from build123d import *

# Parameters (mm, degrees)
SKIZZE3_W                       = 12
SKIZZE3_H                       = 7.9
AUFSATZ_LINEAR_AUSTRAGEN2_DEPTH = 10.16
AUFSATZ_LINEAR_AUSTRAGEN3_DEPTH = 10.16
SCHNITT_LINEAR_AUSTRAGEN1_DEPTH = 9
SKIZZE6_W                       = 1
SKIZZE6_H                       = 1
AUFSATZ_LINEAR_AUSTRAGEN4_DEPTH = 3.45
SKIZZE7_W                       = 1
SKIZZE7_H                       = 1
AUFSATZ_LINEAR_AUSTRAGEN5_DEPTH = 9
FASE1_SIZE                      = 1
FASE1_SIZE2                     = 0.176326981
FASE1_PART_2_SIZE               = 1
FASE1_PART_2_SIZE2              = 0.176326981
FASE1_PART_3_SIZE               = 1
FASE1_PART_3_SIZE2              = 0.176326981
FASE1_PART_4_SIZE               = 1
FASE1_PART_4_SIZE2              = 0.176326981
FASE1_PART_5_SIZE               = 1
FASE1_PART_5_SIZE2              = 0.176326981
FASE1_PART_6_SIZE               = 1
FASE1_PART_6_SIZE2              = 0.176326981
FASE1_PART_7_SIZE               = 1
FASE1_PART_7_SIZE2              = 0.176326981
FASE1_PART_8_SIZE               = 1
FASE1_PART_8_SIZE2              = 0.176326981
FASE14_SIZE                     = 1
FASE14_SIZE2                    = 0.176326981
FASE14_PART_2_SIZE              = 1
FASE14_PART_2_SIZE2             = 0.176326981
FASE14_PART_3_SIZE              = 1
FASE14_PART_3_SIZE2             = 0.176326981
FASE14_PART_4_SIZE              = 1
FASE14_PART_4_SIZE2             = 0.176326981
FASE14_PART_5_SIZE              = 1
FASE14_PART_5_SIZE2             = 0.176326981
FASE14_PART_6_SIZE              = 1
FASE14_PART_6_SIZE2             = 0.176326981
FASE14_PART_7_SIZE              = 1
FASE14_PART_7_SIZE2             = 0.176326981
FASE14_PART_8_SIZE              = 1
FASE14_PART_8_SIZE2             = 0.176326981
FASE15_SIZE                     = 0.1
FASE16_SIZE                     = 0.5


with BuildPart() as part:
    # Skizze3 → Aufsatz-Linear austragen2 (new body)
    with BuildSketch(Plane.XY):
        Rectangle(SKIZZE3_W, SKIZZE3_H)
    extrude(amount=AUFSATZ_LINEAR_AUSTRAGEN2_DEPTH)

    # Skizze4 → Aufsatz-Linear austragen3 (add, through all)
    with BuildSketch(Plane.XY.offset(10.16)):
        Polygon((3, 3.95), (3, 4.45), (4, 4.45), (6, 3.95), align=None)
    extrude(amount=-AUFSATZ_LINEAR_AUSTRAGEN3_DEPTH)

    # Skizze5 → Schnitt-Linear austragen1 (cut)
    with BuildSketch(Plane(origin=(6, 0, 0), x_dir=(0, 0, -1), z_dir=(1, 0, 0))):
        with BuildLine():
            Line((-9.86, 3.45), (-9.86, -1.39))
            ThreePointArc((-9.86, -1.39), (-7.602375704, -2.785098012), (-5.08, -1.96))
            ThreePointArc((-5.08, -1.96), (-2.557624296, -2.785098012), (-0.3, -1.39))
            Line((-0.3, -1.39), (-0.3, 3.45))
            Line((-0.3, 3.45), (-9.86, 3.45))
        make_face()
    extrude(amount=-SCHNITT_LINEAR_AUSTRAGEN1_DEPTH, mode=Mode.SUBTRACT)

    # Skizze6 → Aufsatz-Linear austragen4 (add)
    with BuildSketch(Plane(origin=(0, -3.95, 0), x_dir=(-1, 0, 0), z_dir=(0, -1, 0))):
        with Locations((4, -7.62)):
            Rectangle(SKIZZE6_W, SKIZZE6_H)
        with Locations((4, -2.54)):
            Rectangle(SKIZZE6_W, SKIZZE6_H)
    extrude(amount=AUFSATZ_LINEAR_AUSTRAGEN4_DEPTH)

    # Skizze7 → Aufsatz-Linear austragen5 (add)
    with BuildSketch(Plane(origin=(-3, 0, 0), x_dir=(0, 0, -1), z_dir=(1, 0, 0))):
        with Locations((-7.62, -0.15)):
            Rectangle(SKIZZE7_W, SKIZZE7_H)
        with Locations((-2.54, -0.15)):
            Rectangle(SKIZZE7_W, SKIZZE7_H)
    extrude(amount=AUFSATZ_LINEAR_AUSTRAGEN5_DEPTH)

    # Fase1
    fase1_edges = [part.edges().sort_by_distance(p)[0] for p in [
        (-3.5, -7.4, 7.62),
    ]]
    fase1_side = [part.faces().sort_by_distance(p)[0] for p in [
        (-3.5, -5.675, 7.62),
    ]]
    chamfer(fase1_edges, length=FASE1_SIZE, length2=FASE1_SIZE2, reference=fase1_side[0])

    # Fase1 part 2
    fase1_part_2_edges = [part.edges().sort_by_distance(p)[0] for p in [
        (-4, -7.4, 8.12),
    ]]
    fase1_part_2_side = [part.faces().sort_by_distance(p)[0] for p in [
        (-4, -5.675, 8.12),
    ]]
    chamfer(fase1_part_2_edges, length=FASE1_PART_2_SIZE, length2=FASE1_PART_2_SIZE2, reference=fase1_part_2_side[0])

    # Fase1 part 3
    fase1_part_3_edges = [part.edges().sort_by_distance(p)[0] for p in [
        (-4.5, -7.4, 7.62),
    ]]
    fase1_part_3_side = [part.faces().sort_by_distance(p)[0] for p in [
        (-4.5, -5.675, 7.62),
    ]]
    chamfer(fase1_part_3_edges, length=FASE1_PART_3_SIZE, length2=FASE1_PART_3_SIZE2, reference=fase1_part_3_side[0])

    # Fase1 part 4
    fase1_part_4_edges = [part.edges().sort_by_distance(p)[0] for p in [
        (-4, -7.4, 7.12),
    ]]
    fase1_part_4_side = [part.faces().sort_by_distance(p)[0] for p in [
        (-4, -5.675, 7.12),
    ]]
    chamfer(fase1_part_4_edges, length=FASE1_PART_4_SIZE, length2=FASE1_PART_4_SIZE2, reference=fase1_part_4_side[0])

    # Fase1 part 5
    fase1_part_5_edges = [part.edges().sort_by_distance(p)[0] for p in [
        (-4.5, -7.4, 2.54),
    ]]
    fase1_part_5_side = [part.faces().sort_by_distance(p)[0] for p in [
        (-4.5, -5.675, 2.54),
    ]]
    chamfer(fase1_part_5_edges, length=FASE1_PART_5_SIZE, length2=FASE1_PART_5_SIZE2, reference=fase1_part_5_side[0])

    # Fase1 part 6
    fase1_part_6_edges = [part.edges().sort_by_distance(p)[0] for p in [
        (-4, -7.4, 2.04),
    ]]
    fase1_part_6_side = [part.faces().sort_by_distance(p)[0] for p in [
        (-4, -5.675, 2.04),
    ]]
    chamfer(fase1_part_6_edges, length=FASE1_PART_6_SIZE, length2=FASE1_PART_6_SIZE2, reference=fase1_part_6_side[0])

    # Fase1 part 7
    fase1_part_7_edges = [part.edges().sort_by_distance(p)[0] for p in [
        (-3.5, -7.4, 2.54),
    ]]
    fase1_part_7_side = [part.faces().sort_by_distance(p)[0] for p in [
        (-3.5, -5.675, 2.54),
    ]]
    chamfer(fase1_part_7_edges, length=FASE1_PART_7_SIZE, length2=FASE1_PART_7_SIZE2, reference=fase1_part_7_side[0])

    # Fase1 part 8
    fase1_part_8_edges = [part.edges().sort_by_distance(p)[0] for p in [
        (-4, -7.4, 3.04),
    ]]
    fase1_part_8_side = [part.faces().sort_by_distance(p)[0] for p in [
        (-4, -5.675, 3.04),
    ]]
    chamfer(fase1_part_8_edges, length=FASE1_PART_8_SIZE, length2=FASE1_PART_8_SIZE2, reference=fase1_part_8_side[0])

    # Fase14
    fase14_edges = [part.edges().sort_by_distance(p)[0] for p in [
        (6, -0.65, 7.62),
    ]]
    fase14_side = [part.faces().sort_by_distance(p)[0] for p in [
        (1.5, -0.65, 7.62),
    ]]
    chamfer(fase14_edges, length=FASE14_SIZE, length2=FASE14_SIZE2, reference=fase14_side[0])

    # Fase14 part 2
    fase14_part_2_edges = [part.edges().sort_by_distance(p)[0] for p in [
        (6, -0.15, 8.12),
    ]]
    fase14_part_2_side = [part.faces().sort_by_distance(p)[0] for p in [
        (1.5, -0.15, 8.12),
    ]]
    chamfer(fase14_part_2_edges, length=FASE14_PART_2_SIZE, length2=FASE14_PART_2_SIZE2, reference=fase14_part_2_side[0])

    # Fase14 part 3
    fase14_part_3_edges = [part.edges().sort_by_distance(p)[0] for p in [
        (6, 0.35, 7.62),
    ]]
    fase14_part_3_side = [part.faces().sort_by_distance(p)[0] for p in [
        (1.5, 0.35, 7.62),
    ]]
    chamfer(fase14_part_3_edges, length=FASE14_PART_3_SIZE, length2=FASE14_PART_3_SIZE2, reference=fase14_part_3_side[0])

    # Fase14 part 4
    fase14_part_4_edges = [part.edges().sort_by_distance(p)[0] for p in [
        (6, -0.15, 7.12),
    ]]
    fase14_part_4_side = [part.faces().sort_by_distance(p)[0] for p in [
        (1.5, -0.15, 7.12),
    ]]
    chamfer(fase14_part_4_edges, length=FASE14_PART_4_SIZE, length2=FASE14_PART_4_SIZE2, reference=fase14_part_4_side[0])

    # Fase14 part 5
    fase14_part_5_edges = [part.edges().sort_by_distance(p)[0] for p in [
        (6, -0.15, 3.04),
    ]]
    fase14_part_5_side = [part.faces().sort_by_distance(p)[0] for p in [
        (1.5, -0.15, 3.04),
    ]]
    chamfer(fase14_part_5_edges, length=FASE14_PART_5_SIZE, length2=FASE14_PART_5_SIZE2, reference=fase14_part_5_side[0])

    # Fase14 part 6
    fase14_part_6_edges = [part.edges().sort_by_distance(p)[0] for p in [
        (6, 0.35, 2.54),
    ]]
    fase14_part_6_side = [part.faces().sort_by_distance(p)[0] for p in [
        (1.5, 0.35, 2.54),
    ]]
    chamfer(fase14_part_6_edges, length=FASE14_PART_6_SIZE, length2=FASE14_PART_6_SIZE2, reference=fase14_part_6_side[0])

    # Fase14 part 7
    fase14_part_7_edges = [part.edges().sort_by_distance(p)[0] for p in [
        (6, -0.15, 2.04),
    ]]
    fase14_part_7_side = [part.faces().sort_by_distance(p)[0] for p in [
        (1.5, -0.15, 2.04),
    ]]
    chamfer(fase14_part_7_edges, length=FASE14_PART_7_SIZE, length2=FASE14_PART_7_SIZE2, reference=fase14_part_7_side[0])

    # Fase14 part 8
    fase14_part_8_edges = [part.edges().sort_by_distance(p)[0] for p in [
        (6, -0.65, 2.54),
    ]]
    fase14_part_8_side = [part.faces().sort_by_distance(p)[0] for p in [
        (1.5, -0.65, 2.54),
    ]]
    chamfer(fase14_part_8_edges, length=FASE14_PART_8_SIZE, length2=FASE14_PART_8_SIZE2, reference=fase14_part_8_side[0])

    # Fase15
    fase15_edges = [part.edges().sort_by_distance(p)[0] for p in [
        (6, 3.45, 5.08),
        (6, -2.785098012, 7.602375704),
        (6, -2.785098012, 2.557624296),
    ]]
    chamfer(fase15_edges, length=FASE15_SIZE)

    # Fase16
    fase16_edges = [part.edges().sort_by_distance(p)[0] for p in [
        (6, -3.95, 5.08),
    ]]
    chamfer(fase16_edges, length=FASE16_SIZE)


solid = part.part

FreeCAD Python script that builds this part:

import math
import FreeCAD as App
import Part
import Sketcher
from FreeCAD import Vector


def edges_at(feature, points):
    """Names of the edges that pass closest to the given points."""
    edges = feature.Shape.Edges
    near = lambda p: min(range(len(edges)), key=lambda i: edges[i].distToShape(Part.Vertex(*p))[0])
    return sorted({f"Edge{near(p) + 1}" for p in points})

doc = App.newDocument("Part")
params = doc.addObject("Spreadsheet::Sheet", "Params")
for row, (alias, value) in enumerate([
    ("sketch1_width", "12 mm"),
    ("sketch1_height", "7.9 mm"),
    ("pad1_length", "10.16 mm"),
    ("sketch2_width", "3 mm"),
    ("sketch2_width2", "1 mm"),
    ("sketch2_height", "0.5 mm"),
    ("pad2_length", "10.16 mm"),
    ("sketch3_radius", "3.15 mm"),
    ("sketch3_width", "4.84 mm"),
    ("sketch3_height", "9.56 mm"),
    ("pocket1_length", "9 mm"),
    ("sketch4_width", "1 mm"),
    ("pad3_length", "3.45 mm"),
    ("sketch5_width", "1 mm"),
    ("pad4_length", "9 mm"),
    ("chamfer_size", "1 mm"),
    ("chamfer_size2", "0.176327 mm"),
    ("chamfer2_size", "1 mm"),
    ("chamfer2_size2", "0.176327 mm"),
    ("chamfer3_size", "1 mm"),
    ("chamfer3_size2", "0.176327 mm"),
    ("chamfer4_size", "1 mm"),
    ("chamfer4_size2", "0.176327 mm"),
    ("chamfer5_size", "1 mm"),
    ("chamfer5_size2", "0.176327 mm"),
    ("chamfer6_size", "1 mm"),
    ("chamfer6_size2", "0.176327 mm"),
    ("chamfer7_size", "1 mm"),
    ("chamfer7_size2", "0.176327 mm"),
    ("chamfer8_size", "1 mm"),
    ("chamfer8_size2", "0.176327 mm"),
    ("chamfer9_size", "1 mm"),
    ("chamfer9_size2", "0.176327 mm"),
    ("chamfer10_size", "1 mm"),
    ("chamfer10_size2", "0.176327 mm"),
    ("chamfer11_size", "1 mm"),
    ("chamfer11_size2", "0.176327 mm"),
    ("chamfer12_size", "1 mm"),
    ("chamfer12_size2", "0.176327 mm"),
    ("chamfer13_size", "1 mm"),
    ("chamfer13_size2", "0.176327 mm"),
    ("chamfer14_size", "1 mm"),
    ("chamfer14_size2", "0.176327 mm"),
    ("chamfer15_size", "1 mm"),
    ("chamfer15_size2", "0.176327 mm"),
    ("chamfer16_size", "1 mm"),
    ("chamfer16_size2", "0.176327 mm"),
    ("chamfer17_size", "0.1 mm"),
    ("chamfer18_size", "0.5 mm"),
], start=1):
    params.set(f"A{row}", alias)
    params.set(f"B{row}", "=" + value)
    params.setAlias(f"B{row}", alias)

body = doc.addObject("PartDesign::Body", "Body")

sketch1 = body.newObject("Sketcher::SketchObject", "Sketch")
sketch1.AttachmentSupport = (doc.getObject("XY_Plane"), [""])
sketch1.MapMode = "FlatFace"
sketch1.addGeometry([
    Part.LineSegment(Vector(-6, 4, 0), Vector(-6, -4, 0)),
    Part.LineSegment(Vector(-6, -4, 0), Vector(6, -4, 0)),
    Part.LineSegment(Vector(6, -4, 0), Vector(6, 4, 0)),
    Part.LineSegment(Vector(6, 4, 0), Vector(-6, 4, 0)),
], False)
sketch1.addConstraint([
    Sketcher.Constraint("Coincident", 0, 2, 1, 1),
    Sketcher.Constraint("Coincident", 1, 2, 2, 1),
    Sketcher.Constraint("Coincident", 2, 2, 3, 1),
    Sketcher.Constraint("Coincident", 3, 2, 0, 1),
    Sketcher.Constraint("Vertical", 0),
    Sketcher.Constraint("Horizontal", 1),
    Sketcher.Constraint("Vertical", 2),
    Sketcher.Constraint("Horizontal", 3),
    Sketcher.Constraint("Symmetric", 0, 2, 2, 2, -1, 1),
    Sketcher.Constraint("DistanceX", 1, 1, 1, 2, 12.0),
    Sketcher.Constraint("DistanceY", 0, 2, 0, 1, 7.9),
])
sketch1.setExpression("Constraints[9]", "Params.sketch1_width")
sketch1.setExpression("Constraints[10]", "Params.sketch1_height")
pad1 = body.newObject("PartDesign::Pad", "Pad")
pad1.Profile = sketch1
pad1.setExpression("Length", "Params.pad1_length")

sketch2 = body.newObject("Sketcher::SketchObject", "Sketch001")
sketch2.AttachmentSupport = (doc.getObject("XY_Plane"), [""])
sketch2.MapMode = "FlatFace"
sketch2.AttachmentOffset = App.Placement(Vector(0, 0, 10.16), App.Rotation())
sketch2.addGeometry([
    Part.LineSegment(Vector(3, 4.5, 0), Vector(3, 4, 0)),
    Part.LineSegment(Vector(3, 4, 0), Vector(6, 4, 0)),
    Part.LineSegment(Vector(6, 4, 0), Vector(4, 4.5, 0)),
    Part.LineSegment(Vector(4, 4.5, 0), Vector(3, 4.5, 0)),
], False)
sketch2.addConstraint([
    Sketcher.Constraint("Coincident", 0, 2, 1, 1),
    Sketcher.Constraint("Coincident", 1, 2, 2, 1),
    Sketcher.Constraint("Coincident", 2, 2, 3, 1),
    Sketcher.Constraint("Coincident", 3, 2, 0, 1),
    Sketcher.Constraint("Vertical", 0),
    Sketcher.Constraint("Horizontal", 1),
    Sketcher.Constraint("Horizontal", 3),
    Sketcher.Constraint("DistanceX", 1, 1, 1, 2, 3.0),
    Sketcher.Constraint("DistanceX", 3, 2, 3, 1, 1.0),
    Sketcher.Constraint("DistanceY", 0, 2, 0, 1, 0.5),
    Sketcher.Constraint("DistanceX", -1, 1, 0, 2, 3.0),
    Sketcher.Constraint("DistanceY", -1, 1, 0, 2, 3.95),
])
sketch2.setExpression("Constraints[7]", "Params.sketch2_width")
sketch2.setExpression("Constraints[8]", "Params.sketch2_width2")
sketch2.setExpression("Constraints[9]", "Params.sketch2_height")
pad2 = body.newObject("PartDesign::Pad", "Pad001")
pad2.Profile = sketch2
pad2.setExpression("Length", "Params.pad2_length")
pad2.Reversed = True

sketch3 = body.newObject("Sketcher::SketchObject", "Sketch002")
sketch3.AttachmentSupport = (doc.getObject("YZ_Plane"), [""])
sketch3.MapMode = "FlatFace"
sketch3.AttachmentOffset = App.Placement(Vector(0, 0, 6), App.Rotation())
sketch3.addGeometry([
    Part.LineSegment(Vector(3.5, 9.9, 0), Vector(-1.4, 9.9, 0)),
    Part.ArcOfCircle(Part.Circle(Vector(0.3, 7.2, 0), Vector(0, 0, 1), 3.1), math.radians(123), math.radians(223)),
    Part.ArcOfCircle(Part.Circle(Vector(0.3, 2.9, 0), Vector(0, 0, 1), 3.1), math.radians(137), math.radians(237)),
    Part.LineSegment(Vector(-1.4, 0.3, 0), Vector(3.5, 0.3, 0)),
    Part.LineSegment(Vector(3.5, 0.3, 0), Vector(3.5, 9.9, 0)),
], False)
sketch3.addConstraint([
    Sketcher.Constraint("Coincident", 0, 2, 1, 1),
    Sketcher.Constraint("Coincident", 1, 2, 2, 1),
    Sketcher.Constraint("Coincident", 2, 2, 3, 1),
    Sketcher.Constraint("Coincident", 3, 2, 4, 1),
    Sketcher.Constraint("Coincident", 4, 2, 0, 1),
    Sketcher.Constraint("Horizontal", 0),
    Sketcher.Constraint("Horizontal", 3),
    Sketcher.Constraint("Vertical", 4),
    Sketcher.Constraint("Equal", 1, 2),
    Sketcher.Constraint("Vertical", 1, 3, 2, 3),
    Sketcher.Constraint("Vertical", 0, 2, 2, 2),
    Sketcher.Constraint("Radius", 1, 3.15),
    Sketcher.Constraint("DistanceX", 0, 2, 0, 1, 4.84),
    Sketcher.Constraint("DistanceY", 4, 1, 4, 2, 9.56),
    Sketcher.Constraint("DistanceY", -1, 1, 2, 2, 0.3),
    Sketcher.Constraint("DistanceX", 0, 2, -1, 1, 1.39),
    Sketcher.Constraint("DistanceX", 1, 2, -1, 1, 1.96),
])
sketch3.setExpression("Constraints[11]", "Params.sketch3_radius")
sketch3.setExpression("Constraints[12]", "Params.sketch3_width")
sketch3.setExpression("Constraints[13]", "Params.sketch3_height")
pocket1 = body.newObject("PartDesign::Pocket", "Pocket")
pocket1.Profile = sketch3
pocket1.setExpression("Length", "Params.pocket1_length")

sketch4 = body.newObject("Sketcher::SketchObject", "Sketch003")
sketch4.AttachmentSupport = (doc.getObject("XZ_Plane"), [""])
sketch4.MapMode = "FlatFace"
sketch4.AttachmentOffset = App.Placement(Vector(0, 0, 3.95), App.Rotation())
sketch4.addGeometry([
    Part.LineSegment(Vector(-3.5, 7.1, 0), Vector(-3.5, 8.1, 0)),
    Part.LineSegment(Vector(-3.5, 8.1, 0), Vector(-4.5, 8.1, 0)),
    Part.LineSegment(Vector(-4.5, 8.1, 0), Vector(-4.5, 7.1, 0)),
    Part.LineSegment(Vector(-4.5, 7.1, 0), Vector(-3.5, 7.1, 0)),
    Part.LineSegment(Vector(-3.5, 2, 0), Vector(-3.5, 3, 0)),
    Part.LineSegment(Vector(-3.5, 3, 0), Vector(-4.5, 3, 0)),
    Part.LineSegment(Vector(-4.5, 3, 0), Vector(-4.5, 2, 0)),
    Part.LineSegment(Vector(-4.5, 2, 0), Vector(-3.5, 2, 0)),
], False)
sketch4.addConstraint([
    Sketcher.Constraint("Coincident", 0, 2, 1, 1),
    Sketcher.Constraint("Coincident", 1, 2, 2, 1),
    Sketcher.Constraint("Coincident", 2, 2, 3, 1),
    Sketcher.Constraint("Coincident", 3, 2, 0, 1),
    Sketcher.Constraint("Coincident", 4, 2, 5, 1),
    Sketcher.Constraint("Coincident", 5, 2, 6, 1),
    Sketcher.Constraint("Coincident", 6, 2, 7, 1),
    Sketcher.Constraint("Coincident", 7, 2, 4, 1),
    Sketcher.Constraint("Vertical", 0),
    Sketcher.Constraint("Horizontal", 1),
    Sketcher.Constraint("Vertical", 2),
    Sketcher.Constraint("Horizontal", 3),
    Sketcher.Constraint("Vertical", 4),
    Sketcher.Constraint("Horizontal", 5),
    Sketcher.Constraint("Vertical", 6),
    Sketcher.Constraint("Horizontal", 7),
    Sketcher.Constraint("Vertical", 3, 2, 4, 2),
    Sketcher.Constraint("Vertical", 2, 2, 5, 2),
    Sketcher.Constraint("Equal", 7, 0),
    Sketcher.Constraint("Equal", 2, 4),
    Sketcher.Constraint("DistanceX", 1, 2, 1, 1, 1.0),
    Sketcher.Constraint("DistanceX", 0, 2, -1, 1, 3.5),
    Sketcher.Constraint("DistanceY", -1, 1, 0, 2, 8.12),
    Sketcher.Constraint("DistanceY", -1, 1, 4, 2, 3.04),
])
sketch4.setExpression("Constraints[20]", "Params.sketch4_width")
pad3 = body.newObject("PartDesign::Pad", "Pad002")
pad3.Profile = sketch4
pad3.setExpression("Length", "Params.pad3_length")

sketch5 = body.newObject("Sketcher::SketchObject", "Sketch004")
sketch5.AttachmentSupport = (doc.getObject("YZ_Plane"), [""])
sketch5.MapMode = "FlatFace"
sketch5.AttachmentOffset = App.Placement(Vector(0, 0, -3), App.Rotation())
sketch5.addGeometry([
    Part.LineSegment(Vector(0.3, 8.1, 0), Vector(-0.7, 8.1, 0)),
    Part.LineSegment(Vector(-0.7, 8.1, 0), Vector(-0.7, 7.1, 0)),
    Part.LineSegment(Vector(-0.7, 7.1, 0), Vector(0.3, 7.1, 0)),
    Part.LineSegment(Vector(0.3, 7.1, 0), Vector(0.3, 8.1, 0)),
    Part.LineSegment(Vector(0.3, 3, 0), Vector(-0.7, 3, 0)),
    Part.LineSegment(Vector(-0.7, 3, 0), Vector(-0.7, 2, 0)),
    Part.LineSegment(Vector(-0.7, 2, 0), Vector(0.3, 2, 0)),
    Part.LineSegment(Vector(0.3, 2, 0), Vector(0.3, 3, 0)),
], False)
sketch5.addConstraint([
    Sketcher.Constraint("Coincident", 0, 2, 1, 1),
    Sketcher.Constraint("Coincident", 1, 2, 2, 1),
    Sketcher.Constraint("Coincident", 2, 2, 3, 1),
    Sketcher.Constraint("Coincident", 3, 2, 0, 1),
    Sketcher.Constraint("Coincident", 4, 2, 5, 1),
    Sketcher.Constraint("Coincident", 5, 2, 6, 1),
    Sketcher.Constraint("Coincident", 6, 2, 7, 1),
    Sketcher.Constraint("Coincident", 7, 2, 4, 1),
    Sketcher.Constraint("Horizontal", 0),
    Sketcher.Constraint("Vertical", 1),
    Sketcher.Constraint("Horizontal", 2),
    Sketcher.Constraint("Vertical", 3),
    Sketcher.Constraint("Horizontal", 4),
    Sketcher.Constraint("Vertical", 5),
    Sketcher.Constraint("Horizontal", 6),
    Sketcher.Constraint("Vertical", 7),
    Sketcher.Constraint("Vertical", 1, 2, 4, 2),
    Sketcher.Constraint("Vertical", 3, 2, 6, 2),
    Sketcher.Constraint("Equal", 6, 1),
    Sketcher.Constraint("Equal", 3, 5),
    Sketcher.Constraint("DistanceX", 0, 2, 0, 1, 1.0),
    Sketcher.Constraint("DistanceX", 0, 2, -1, 1, 0.65),
    Sketcher.Constraint("DistanceY", -1, 1, 0, 2, 8.12),
    Sketcher.Constraint("DistanceY", -1, 1, 4, 2, 3.04),
])
sketch5.setExpression("Constraints[20]", "Params.sketch5_width")
pad4 = body.newObject("PartDesign::Pad", "Pad003")
pad4.Profile = sketch5
pad4.setExpression("Length", "Params.pad4_length")
doc.recompute()

chamfer = body.newObject("PartDesign::Chamfer", "Chamfer")
chamfer.Base = (pad4, edges_at(pad4, [(-3.5, -7.4, 7.62)]))
chamfer.ChamferType = "Two distances"
chamfer.setExpression("Size", "Params.chamfer_size")
chamfer.setExpression("Size2", "Params.chamfer_size2")
doc.recompute()

chamfer2 = body.newObject("PartDesign::Chamfer", "Chamfer001")
chamfer2.Base = (chamfer, edges_at(chamfer, [(-4.088, -7.4, 8.12)]))
chamfer2.ChamferType = "Two distances"
chamfer2.setExpression("Size", "Params.chamfer2_size")
chamfer2.setExpression("Size2", "Params.chamfer2_size2")
chamfer2.FlipDirection = True
doc.recompute()

chamfer3 = body.newObject("PartDesign::Chamfer", "Chamfer002")
chamfer3.Base = (chamfer2, edges_at(chamfer2, [(-4.5, -7.4, 7.532)]))
chamfer3.ChamferType = "Two distances"
chamfer3.setExpression("Size", "Params.chamfer3_size")
chamfer3.setExpression("Size2", "Params.chamfer3_size2")
chamfer3.FlipDirection = True
doc.recompute()

chamfer4 = body.newObject("PartDesign::Chamfer", "Chamfer003")
chamfer4.Base = (chamfer3, edges_at(chamfer3, [(-4, -7.4, 7.12)]))
chamfer4.ChamferType = "Two distances"
chamfer4.setExpression("Size", "Params.chamfer4_size")
chamfer4.setExpression("Size2", "Params.chamfer4_size2")
chamfer4.FlipDirection = True
doc.recompute()

chamfer5 = body.newObject("PartDesign::Chamfer", "Chamfer004")
chamfer5.Base = (chamfer4, edges_at(chamfer4, [(-4.5, -7.4, 2.54)]))
chamfer5.ChamferType = "Two distances"
chamfer5.setExpression("Size", "Params.chamfer5_size")
chamfer5.setExpression("Size2", "Params.chamfer5_size2")
doc.recompute()

chamfer6 = body.newObject("PartDesign::Chamfer", "Chamfer005")
chamfer6.Base = (chamfer5, edges_at(chamfer5, [(-3.912, -7.4, 2.04)]))
chamfer6.ChamferType = "Two distances"
chamfer6.setExpression("Size", "Params.chamfer6_size")
chamfer6.setExpression("Size2", "Params.chamfer6_size2")
doc.recompute()

chamfer7 = body.newObject("PartDesign::Chamfer", "Chamfer006")
chamfer7.Base = (chamfer6, edges_at(chamfer6, [(-3.5, -7.4, 2.628)]))
chamfer7.ChamferType = "Two distances"
chamfer7.setExpression("Size", "Params.chamfer7_size")
chamfer7.setExpression("Size2", "Params.chamfer7_size2")
doc.recompute()

chamfer8 = body.newObject("PartDesign::Chamfer", "Chamfer007")
chamfer8.Base = (chamfer7, edges_at(chamfer7, [(-4, -7.4, 3.04)]))
chamfer8.ChamferType = "Two distances"
chamfer8.setExpression("Size", "Params.chamfer8_size")
chamfer8.setExpression("Size2", "Params.chamfer8_size2")
doc.recompute()

chamfer9 = body.newObject("PartDesign::Chamfer", "Chamfer008")
chamfer9.Base = (chamfer8, edges_at(chamfer8, [(6, -0.65, 7.62)]))
chamfer9.ChamferType = "Two distances"
chamfer9.setExpression("Size", "Params.chamfer9_size")
chamfer9.setExpression("Size2", "Params.chamfer9_size2")
doc.recompute()

chamfer10 = body.newObject("PartDesign::Chamfer", "Chamfer009")
chamfer10.Base = (chamfer9, edges_at(chamfer9, [(6, -0.062, 8.12)]))
chamfer10.ChamferType = "Two distances"
chamfer10.setExpression("Size", "Params.chamfer10_size")
chamfer10.setExpression("Size2", "Params.chamfer10_size2")
doc.recompute()

chamfer11 = body.newObject("PartDesign::Chamfer", "Chamfer010")
chamfer11.Base = (chamfer10, edges_at(chamfer10, [(6, 0.35, 7.532)]))
chamfer11.ChamferType = "Two distances"
chamfer11.setExpression("Size", "Params.chamfer11_size")
chamfer11.setExpression("Size2", "Params.chamfer11_size2")
doc.recompute()

chamfer12 = body.newObject("PartDesign::Chamfer", "Chamfer011")
chamfer12.Base = (chamfer11, edges_at(chamfer11, [(6, -0.15, 7.12)]))
chamfer12.ChamferType = "Two distances"
chamfer12.setExpression("Size", "Params.chamfer12_size")
chamfer12.setExpression("Size2", "Params.chamfer12_size2")
doc.recompute()

chamfer13 = body.newObject("PartDesign::Chamfer", "Chamfer012")
chamfer13.Base = (chamfer12, edges_at(chamfer12, [(6, -0.15, 3.04)]))
chamfer13.ChamferType = "Two distances"
chamfer13.setExpression("Size", "Params.chamfer13_size")
chamfer13.setExpression("Size2", "Params.chamfer13_size2")
doc.recompute()

chamfer14 = body.newObject("PartDesign::Chamfer", "Chamfer013")
chamfer14.Base = (chamfer13, edges_at(chamfer13, [(6, 0.35, 2.452)]))
chamfer14.ChamferType = "Two distances"
chamfer14.setExpression("Size", "Params.chamfer14_size")
chamfer14.setExpression("Size2", "Params.chamfer14_size2")
doc.recompute()

chamfer15 = body.newObject("PartDesign::Chamfer", "Chamfer014")
chamfer15.Base = (chamfer14, edges_at(chamfer14, [(6, -0.238, 2.04)]))
chamfer15.ChamferType = "Two distances"
chamfer15.setExpression("Size", "Params.chamfer15_size")
chamfer15.setExpression("Size2", "Params.chamfer15_size2")
doc.recompute()

chamfer16 = body.newObject("PartDesign::Chamfer", "Chamfer015")
chamfer16.Base = (chamfer15, edges_at(chamfer15, [(6, -0.65, 2.54)]))
chamfer16.ChamferType = "Two distances"
chamfer16.setExpression("Size", "Params.chamfer16_size")
chamfer16.setExpression("Size2", "Params.chamfer16_size2")
doc.recompute()

chamfer17 = body.newObject("PartDesign::Chamfer", "Chamfer016")
chamfer17.Base = (chamfer16, edges_at(chamfer16, [(6, 3.45, 5.08), (6, -2.785, 7.602), (6, -2.785, 2.558)]))
chamfer17.setExpression("Size", "Params.chamfer17_size")
doc.recompute()

chamfer18 = body.newObject("PartDesign::Chamfer", "Chamfer017")
chamfer18.Base = (chamfer17, edges_at(chamfer17, [(6, -3.95, 5.08)]))
chamfer18.setExpression("Size", "Params.chamfer18_size")

doc.recompute()
